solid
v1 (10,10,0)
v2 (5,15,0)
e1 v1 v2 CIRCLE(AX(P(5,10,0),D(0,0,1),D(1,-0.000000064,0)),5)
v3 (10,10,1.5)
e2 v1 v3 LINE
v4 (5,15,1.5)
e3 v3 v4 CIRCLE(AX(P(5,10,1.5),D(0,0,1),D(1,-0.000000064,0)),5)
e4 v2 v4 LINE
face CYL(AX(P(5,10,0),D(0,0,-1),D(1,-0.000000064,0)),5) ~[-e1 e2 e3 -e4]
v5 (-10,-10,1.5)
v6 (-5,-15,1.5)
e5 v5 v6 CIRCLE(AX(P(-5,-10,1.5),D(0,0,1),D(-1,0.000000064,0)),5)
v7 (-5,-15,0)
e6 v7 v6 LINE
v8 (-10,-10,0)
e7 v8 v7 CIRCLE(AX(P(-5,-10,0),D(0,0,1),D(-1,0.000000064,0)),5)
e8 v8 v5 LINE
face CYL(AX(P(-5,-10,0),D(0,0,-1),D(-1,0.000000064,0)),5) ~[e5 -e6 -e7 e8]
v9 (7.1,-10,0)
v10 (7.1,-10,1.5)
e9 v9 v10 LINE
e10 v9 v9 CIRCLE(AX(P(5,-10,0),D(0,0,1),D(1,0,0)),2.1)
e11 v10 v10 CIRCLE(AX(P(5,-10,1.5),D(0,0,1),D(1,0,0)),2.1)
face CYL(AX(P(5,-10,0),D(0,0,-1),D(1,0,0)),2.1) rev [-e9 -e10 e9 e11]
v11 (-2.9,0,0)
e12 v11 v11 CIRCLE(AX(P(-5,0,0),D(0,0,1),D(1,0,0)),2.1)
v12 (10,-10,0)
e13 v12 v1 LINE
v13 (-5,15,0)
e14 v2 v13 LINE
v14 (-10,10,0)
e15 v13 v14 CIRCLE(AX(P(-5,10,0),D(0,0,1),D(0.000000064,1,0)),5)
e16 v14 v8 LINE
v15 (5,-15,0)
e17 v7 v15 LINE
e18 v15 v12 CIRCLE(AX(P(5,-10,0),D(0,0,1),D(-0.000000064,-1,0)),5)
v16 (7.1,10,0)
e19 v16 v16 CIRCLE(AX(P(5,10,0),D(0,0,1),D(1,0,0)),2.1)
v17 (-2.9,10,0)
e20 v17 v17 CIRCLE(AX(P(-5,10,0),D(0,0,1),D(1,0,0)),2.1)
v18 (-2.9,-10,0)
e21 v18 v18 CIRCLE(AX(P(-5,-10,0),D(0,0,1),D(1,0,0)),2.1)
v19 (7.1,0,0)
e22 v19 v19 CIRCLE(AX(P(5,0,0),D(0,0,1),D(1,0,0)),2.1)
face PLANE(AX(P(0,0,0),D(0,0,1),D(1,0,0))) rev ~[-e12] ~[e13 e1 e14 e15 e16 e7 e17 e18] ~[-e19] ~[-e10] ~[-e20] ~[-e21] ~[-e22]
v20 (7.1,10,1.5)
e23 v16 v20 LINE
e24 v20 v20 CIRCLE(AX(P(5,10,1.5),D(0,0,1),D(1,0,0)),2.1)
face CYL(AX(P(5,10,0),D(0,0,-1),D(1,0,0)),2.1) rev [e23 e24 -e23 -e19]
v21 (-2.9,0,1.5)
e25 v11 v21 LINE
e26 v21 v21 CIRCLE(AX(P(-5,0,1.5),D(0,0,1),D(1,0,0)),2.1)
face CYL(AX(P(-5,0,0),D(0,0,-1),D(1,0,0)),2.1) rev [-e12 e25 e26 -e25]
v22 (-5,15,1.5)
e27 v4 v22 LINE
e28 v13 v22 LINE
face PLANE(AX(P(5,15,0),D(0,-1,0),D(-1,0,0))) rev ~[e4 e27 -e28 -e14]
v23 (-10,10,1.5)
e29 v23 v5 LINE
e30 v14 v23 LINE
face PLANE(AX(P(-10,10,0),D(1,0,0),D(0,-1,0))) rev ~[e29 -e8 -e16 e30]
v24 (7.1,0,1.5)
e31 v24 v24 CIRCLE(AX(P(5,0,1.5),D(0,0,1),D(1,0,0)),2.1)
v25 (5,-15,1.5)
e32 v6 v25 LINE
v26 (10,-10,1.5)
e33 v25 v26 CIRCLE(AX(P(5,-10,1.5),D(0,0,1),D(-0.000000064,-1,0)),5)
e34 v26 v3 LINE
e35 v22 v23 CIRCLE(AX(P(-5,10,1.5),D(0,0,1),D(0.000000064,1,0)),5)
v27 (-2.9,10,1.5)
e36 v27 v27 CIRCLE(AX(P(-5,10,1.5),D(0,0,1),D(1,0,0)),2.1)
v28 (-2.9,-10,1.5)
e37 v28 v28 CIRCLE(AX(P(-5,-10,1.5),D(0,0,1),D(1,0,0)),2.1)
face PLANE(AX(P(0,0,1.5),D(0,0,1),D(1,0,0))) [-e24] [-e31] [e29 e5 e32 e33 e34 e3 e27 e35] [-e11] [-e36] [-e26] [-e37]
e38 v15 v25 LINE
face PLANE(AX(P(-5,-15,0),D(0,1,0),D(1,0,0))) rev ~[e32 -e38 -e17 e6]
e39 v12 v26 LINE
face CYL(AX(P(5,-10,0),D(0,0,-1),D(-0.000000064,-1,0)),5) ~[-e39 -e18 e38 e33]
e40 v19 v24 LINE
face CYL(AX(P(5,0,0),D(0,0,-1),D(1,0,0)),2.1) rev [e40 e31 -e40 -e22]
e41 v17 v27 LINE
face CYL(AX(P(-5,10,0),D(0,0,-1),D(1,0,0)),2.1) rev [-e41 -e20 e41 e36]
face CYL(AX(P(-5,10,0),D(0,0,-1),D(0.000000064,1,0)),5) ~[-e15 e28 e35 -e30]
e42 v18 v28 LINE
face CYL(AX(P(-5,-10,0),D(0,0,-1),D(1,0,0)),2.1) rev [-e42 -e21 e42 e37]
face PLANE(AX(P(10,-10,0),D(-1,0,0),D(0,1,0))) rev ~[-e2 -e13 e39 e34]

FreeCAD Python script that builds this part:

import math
import FreeCAD as App
import Part
import Sketcher

V = App.Vector
Q = App.Units.Quantity

doc = App.newDocument("Part")
body = doc.addObject("PartDesign::Body", "Body")

sketch1 = body.newObject("Sketcher::SketchObject", "Sketch")
sketch1.AttachmentSupport = (doc.getObject("XY_Plane"), [""])
sketch1.MapMode = "FlatFace"
sketch1.addGeometry([
    Part.LineSegment(V(-5, -15, 0), V(5, -15, 0)),
    Part.ArcOfCircle(Part.Circle(V(5, -10, 0), V(0, 0, 1), 5), math.radians(-90.000004), math.radians(0.000004)),
    Part.LineSegment(V(10, -10, 0), V(10, 10, 0)),
    Part.ArcOfCircle(Part.Circle(V(5, 10, 0), V(0, 0, 1), 5), math.radians(-0.000004), math.radians(90.000004)),
    Part.LineSegment(V(5, 15, 0), V(-5, 15, 0)),
    Part.ArcOfCircle(Part.Circle(V(-5, 10, 0), V(0, 0, 1), 5), math.radians(89.999996), math.radians(180.000004)),
    Part.LineSegment(V(-10, 10, 0), V(-10, -10, 0)),
    Part.ArcOfCircle(Part.Circle(V(-5, -10, 0), V(0, 0, 1), 5), math.radians(179.999996), math.radians(270.000004)),
    Part.Circle(V(-5, -10, 0), V(0, 0, 1), 2.1),
    Part.Circle(V(5, -10, 0), V(0, 0, 1), 2.1),
    Part.Circle(V(-5, 0, 0), V(0, 0, 1), 2.1),
    Part.Circle(V(-5, 10, 0), V(0, 0, 1), 2.1),
    Part.Circle(V(5, 0, 0), V(0, 0, 1), 2.1),
    Part.Circle(V(5, 10, 0), V(0, 0, 1), 2.1),
], False)
sketch1.addConstraint([
    Sketcher.Constraint("Tangent", 0, 2, 1, 1),
    Sketcher.Constraint("Tangent", 1, 2, 2, 1),
    Sketcher.Constraint("Tangent", 2, 2, 3, 1),
    Sketcher.Constraint("Tangent", 3, 2, 4, 1),
    Sketcher.Constraint("Tangent", 4, 2, 5, 1),
    Sketcher.Constraint("Tangent", 5, 2, 6, 1),
    Sketcher.Constraint("Tangent", 6, 2, 7, 1),
    Sketcher.Constraint("Tangent", 7, 2, 0, 1),
    Sketcher.Constraint("Horizontal", 0),
    Sketcher.Constraint("Vertical", 2),
    Sketcher.Constraint("Horizontal", 4),
    Sketcher.Constraint("Vertical", 6),
    Sketcher.Constraint("Coincident", 8, 3, 7, 3),
    Sketcher.Constraint("Coincident", 9, 3, 1, 3),
    Sketcher.Constraint("Coincident", 11, 3, 5, 3),
    Sketcher.Constraint("Coincident", 13, 3, 3, 3),
    Sketcher.Constraint("Equal", 1, 3),
    Sketcher.Constraint("Equal", 3, 5),
    Sketcher.Constraint("Equal", 5, 7),
    Sketcher.Constraint("Equal", 8, 9),
    Sketcher.Constraint("Equal", 9, 10),
    Sketcher.Constraint("Equal", 10, 11),
    Sketcher.Constraint("Equal", 11, 12),
    Sketcher.Constraint("Equal", 12, 13),
    Sketcher.Constraint("Symmetric", 1, 3, 5, 3, -1, 1),
    Sketcher.Constraint("Symmetric", 10, 3, 12, 3, -1, 1),
    Sketcher.Constraint("PointOnObject", 10, 3, -1),
    Sketcher.Constraint("Vertical", 8, 3, 10, 3),
    Sketcher.Constraint("Radius", 1, Q("5 mm")),
    Sketcher.Constraint("Diameter", 8, Q("4.2 mm")),
    Sketcher.Constraint("DistanceX", 0, 1, 0, 2, Q("10 mm")),
    Sketcher.Constraint("DistanceY", 2, 1, 2, 2, Q("20 mm")),
])
pad1 = body.newObject("PartDesign::Pad", "Pad")
pad1.Profile = sketch1
pad1.Length = 1.5

doc.recompute()
